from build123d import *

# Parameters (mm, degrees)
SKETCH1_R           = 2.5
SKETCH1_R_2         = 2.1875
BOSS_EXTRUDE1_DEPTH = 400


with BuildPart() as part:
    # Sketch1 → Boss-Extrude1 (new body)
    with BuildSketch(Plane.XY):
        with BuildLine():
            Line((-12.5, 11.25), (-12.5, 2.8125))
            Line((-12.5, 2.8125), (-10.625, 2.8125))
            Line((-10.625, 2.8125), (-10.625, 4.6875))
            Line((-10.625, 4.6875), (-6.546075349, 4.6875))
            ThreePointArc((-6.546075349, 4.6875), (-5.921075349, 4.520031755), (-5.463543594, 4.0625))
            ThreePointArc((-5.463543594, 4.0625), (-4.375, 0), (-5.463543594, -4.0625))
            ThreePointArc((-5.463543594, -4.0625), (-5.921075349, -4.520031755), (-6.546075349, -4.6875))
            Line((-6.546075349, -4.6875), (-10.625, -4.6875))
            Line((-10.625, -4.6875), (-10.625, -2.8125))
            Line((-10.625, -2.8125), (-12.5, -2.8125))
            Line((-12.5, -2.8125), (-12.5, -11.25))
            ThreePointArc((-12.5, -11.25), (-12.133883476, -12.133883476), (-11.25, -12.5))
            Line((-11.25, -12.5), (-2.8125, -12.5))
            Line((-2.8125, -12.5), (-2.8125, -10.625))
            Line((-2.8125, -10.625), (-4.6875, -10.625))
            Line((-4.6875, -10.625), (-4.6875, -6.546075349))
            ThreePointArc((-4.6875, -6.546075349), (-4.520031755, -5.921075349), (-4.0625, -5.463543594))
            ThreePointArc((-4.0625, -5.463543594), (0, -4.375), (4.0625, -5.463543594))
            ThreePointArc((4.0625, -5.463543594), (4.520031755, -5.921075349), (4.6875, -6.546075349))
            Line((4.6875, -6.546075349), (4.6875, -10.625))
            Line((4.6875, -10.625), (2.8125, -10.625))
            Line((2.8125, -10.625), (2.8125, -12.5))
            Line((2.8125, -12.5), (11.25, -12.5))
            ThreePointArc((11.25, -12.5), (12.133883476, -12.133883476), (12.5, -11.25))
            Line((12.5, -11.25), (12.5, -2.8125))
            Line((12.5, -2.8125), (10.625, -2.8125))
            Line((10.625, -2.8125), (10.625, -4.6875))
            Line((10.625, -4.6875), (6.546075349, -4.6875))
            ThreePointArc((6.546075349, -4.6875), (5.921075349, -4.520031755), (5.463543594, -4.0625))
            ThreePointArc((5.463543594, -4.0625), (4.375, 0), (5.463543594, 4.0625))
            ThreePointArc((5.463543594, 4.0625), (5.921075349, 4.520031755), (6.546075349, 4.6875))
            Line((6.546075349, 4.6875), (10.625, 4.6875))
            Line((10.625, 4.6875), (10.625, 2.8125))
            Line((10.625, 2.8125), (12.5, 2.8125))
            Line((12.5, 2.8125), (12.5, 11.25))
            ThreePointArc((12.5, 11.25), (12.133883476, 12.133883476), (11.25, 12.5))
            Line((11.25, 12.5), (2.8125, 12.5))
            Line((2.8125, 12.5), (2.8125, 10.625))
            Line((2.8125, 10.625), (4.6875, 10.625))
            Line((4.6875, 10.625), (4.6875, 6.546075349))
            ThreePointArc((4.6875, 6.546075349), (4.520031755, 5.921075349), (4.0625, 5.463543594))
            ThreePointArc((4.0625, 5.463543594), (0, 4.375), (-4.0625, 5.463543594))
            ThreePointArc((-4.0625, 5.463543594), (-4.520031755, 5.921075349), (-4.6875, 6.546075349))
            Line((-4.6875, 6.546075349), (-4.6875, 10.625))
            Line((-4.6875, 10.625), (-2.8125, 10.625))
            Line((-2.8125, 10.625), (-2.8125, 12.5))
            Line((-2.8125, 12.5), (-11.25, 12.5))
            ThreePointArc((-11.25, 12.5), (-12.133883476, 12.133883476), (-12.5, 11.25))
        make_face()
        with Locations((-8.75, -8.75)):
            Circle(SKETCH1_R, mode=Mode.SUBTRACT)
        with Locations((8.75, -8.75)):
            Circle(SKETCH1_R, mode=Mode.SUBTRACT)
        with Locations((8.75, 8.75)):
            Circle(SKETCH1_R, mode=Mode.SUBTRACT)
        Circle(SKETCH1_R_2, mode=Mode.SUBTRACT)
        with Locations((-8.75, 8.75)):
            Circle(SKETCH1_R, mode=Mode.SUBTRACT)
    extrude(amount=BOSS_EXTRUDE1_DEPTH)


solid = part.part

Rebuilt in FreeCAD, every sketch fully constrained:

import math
import FreeCAD as App
import Part
import Sketcher
Q = App.Units.Quantity

doc = App.newDocument("Part")
body = doc.addObject("PartDesign::Body", "Body")

sketch1 = body.newObject("Sketcher::SketchObject", "Sketch")
sketch1.AttachmentSupport = (doc.getObject("XY_Plane"), [""])
sketch1.MapMode = "FlatFace"
sketch1.addGeometry([
    Part.LineSegment(App.Vector(-12.5, 11.25, 0), App.Vector(-12.5, 2.8125, 0)),
    Part.LineSegment(App.Vector(-12.5, 2.8125, 0), App.Vector(-10.625, 2.8125, 0)),
    Part.LineSegment(App.Vector(-10.625, 2.8125, 0), App.Vector(-10.625, 4.6875, 0)),
    Part.LineSegment(App.Vector(-10.625, 4.6875, 0), App.Vector(-6.546075, 4.6875, 0)),
    Part.ArcOfCircle(Part.Circle(App.Vector(-6.546075, 3.4375, 0), App.Vector(0, 0, 1), 1.25), math.radians(30), math.radians(90)),
    Part.ArcOfCircle(Part.Circle(App.Vector(-12.5, 0, 0), App.Vector(0, 0, 1), 8.125), math.radians(-30), math.radians(30)),
    Part.ArcOfCircle(Part.Circle(App.Vector(-6.546075, -3.4375, 0), App.Vector(0, 0, 1), 1.25), math.radians(-90), math.radians(-30)),
    Part.LineSegment(App.Vector(-6.546075, -4.6875, 0), App.Vector(-10.625, -4.6875, 0)),
    Part.LineSegment(App.Vector(-10.625, -4.6875, 0), App.Vector(-10.625, -2.8125, 0)),
    Part.LineSegment(App.Vector(-10.625, -2.8125, 0), App.Vector(-12.5, -2.8125, 0)),
    Part.LineSegment(App.Vector(-12.5, -2.8125, 0), App.Vector(-12.5, -11.25, 0)),
    Part.ArcOfCircle(Part.Circle(App.Vector(-11.25, -11.25, 0), App.Vector(0, 0, 1), 1.25), math.radians(-180), math.radians(-90)),
    Part.LineSegment(App.Vector(-11.25, -12.5, 0), App.Vector(-2.8125, -12.5, 0)),
    Part.LineSegment(App.Vector(-2.8125, -12.5, 0), App.Vector(-2.8125, -10.625, 0)),
    Part.LineSegment(App.Vector(-2.8125, -10.625, 0), App.Vector(-4.6875, -10.625, 0)),
    Part.LineSegment(App.Vector(-4.6875, -10.625, 0), App.Vector(-4.6875, -6.546075, 0)),
    Part.ArcOfCircle(Part.Circle(App.Vector(-3.4375, -6.546075, 0), App.Vector(0, 0, 1), 1.25), math.radians(120), math.radians(180)),
    Part.ArcOfCircle(Part.Circle(App.Vector(0, -12.5, 0), App.Vector(0, 0, 1), 8.125), math.radians(60), math.radians(120)),
    Part.ArcOfCircle(Part.Circle(App.Vector(3.4375, -6.546075, 0), App.Vector(0, 0, 1), 1.25), math.radians(0), math.radians(60)),
    Part.LineSegment(App.Vector(4.6875, -6.546075, 0), App.Vector(4.6875, -10.625, 0)),
    Part.LineSegment(App.Vector(4.6875, -10.625, 0), App.Vector(2.8125, -10.625, 0)),
    Part.LineSegment(App.Vector(2.8125, -10.625, 0), App.Vector(2.8125, -12.5, 0)),
    Part.LineSegment(App.Vector(2.8125, -12.5, 0), App.Vector(11.25, -12.5, 0)),
    Part.ArcOfCircle(Part.Circle(App.Vector(11.25, -11.25, 0), App.Vector(0, 0, 1), 1.25), math.radians(-90), math.radians(0)),
    Part.LineSegment(App.Vector(12.5, -11.25, 0), App.Vector(12.5, -2.8125, 0)),
    Part.LineSegment(App.Vector(12.5, -2.8125, 0), App.Vector(10.625, -2.8125, 0)),
    Part.LineSegment(App.Vector(10.625, -2.8125, 0), App.Vector(10.625, -4.6875, 0)),
    Part.LineSegment(App.Vector(10.625, -4.6875, 0), App.Vector(6.546075, -4.6875, 0)),
    Part.ArcOfCircle(Part.Circle(App.Vector(6.546075, -3.4375, 0), App.Vector(0, 0, 1), 1.25), math.radians(-150), math.radians(-90)),
    Part.ArcOfCircle(Part.Circle(App.Vector(12.5, 0, 0), App.Vector(0, 0, 1), 8.125), math.radians(150), math.radians(210)),
    Part.ArcOfCircle(Part.Circle(App.Vector(6.546075, 3.4375, 0), App.Vector(0, 0, 1), 1.25), math.radians(90), math.radians(150)),
    Part.LineSegment(App.Vector(6.546075, 4.6875, 0), App.Vector(10.625, 4.6875, 0)),
    Part.LineSegment(App.Vector(10.625, 4.6875, 0), App.Vector(10.625, 2.8125, 0)),
    Part.LineSegment(App.Vector(10.625, 2.8125, 0), App.Vector(12.5, 2.8125, 0)),
    Part.LineSegment(App.Vector(12.5, 2.8125, 0), App.Vector(12.5, 11.25, 0)),
    Part.ArcOfCircle(Part.Circle(App.Vector(11.25, 11.25, 0), App.Vector(0, 0, 1), 1.25), math.radians(0), math.radians(90)),
    Part.LineSegment(App.Vector(11.25, 12.5, 0), App.Vector(2.8125, 12.5, 0)),
    Part.LineSegment(App.Vector(2.8125, 12.5, 0), App.Vector(2.8125, 10.625, 0)),
    Part.LineSegment(App.Vector(2.8125, 10.625, 0), App.Vector(4.6875, 10.625, 0)),
    Part.LineSegment(App.Vector(4.6875, 10.625, 0), App.Vector(4.6875, 6.546075, 0)),
    Part.ArcOfCircle(Part.Circle(App.Vector(3.4375, 6.546075, 0), App.Vector(0, 0, 1), 1.25), math.radians(-60), math.radians(0)),
    Part.ArcOfCircle(Part.Circle(App.Vector(0, 12.5, 0), App.Vector(0, 0, 1), 8.125), math.radians(-120), math.radians(-60)),
    Part.ArcOfCircle(Part.Circle(App.Vector(-3.4375, 6.546075, 0), App.Vector(0, 0, 1), 1.25), math.radians(180), math.radians(240)),
    Part.LineSegment(App.Vector(-4.6875, 6.546075, 0), App.Vector(-4.6875, 10.625, 0)),
    Part.LineSegment(App.Vector(-4.6875, 10.625, 0), App.Vector(-2.8125, 10.625, 0)),
    Part.LineSegment(App.Vector(-2.8125, 10.625, 0), App.Vector(-2.8125, 12.5, 0)),
    Part.LineSegment(App.Vector(-2.8125, 12.5, 0), App.Vector(-11.25, 12.5, 0)),
    Part.ArcOfCircle(Part.Circle(App.Vector(-11.25, 11.25, 0), App.Vector(0, 0, 1), 1.25), math.radians(90), math.radians(180)),
    Part.Circle(App.Vector(-8.75, -8.75, 0), App.Vector(0, 0, 1), 2.5),
    Part.Circle(App.Vector(8.75, -8.75, 0), App.Vector(0, 0, 1), 2.5),
    Part.Circle(App.Vector(-8.75, 8.75, 0), App.Vector(0, 0, 1), 2.5),
    Part.Circle(App.Vector(0, 0, 0), App.Vector(0, 0, 1), 2.1875),
    Part.Circle(App.Vector(8.75, 8.75, 0), App.Vector(0, 0, 1), 2.5),
], False)
sketch1.addConstraint([
    Sketcher.Constraint("Coincident", 0, 2, 1, 1),
    Sketcher.Constraint("Coincident", 1, 2, 2, 1),
    Sketcher.Constraint("Coincident", 2, 2, 3, 1),
    Sketcher.Constraint("Tangent", 3, 2, 4, 2),
    Sketcher.Constraint("Tangent", 4, 1, 5, 2),
    Sketcher.Constraint("Tangent", 5, 1, 6, 2),
    Sketcher.Constraint("Tangent", 6, 1, 7, 1),
    Sketcher.Constraint("Coincident", 7, 2, 8, 1),
    Sketcher.Constraint("Coincident", 8, 2, 9, 1),
    Sketcher.Constraint("Coincident", 9, 2, 10, 1),
    Sketcher.Constraint("Tangent", 10, 2, 11, 1),
    Sketcher.Constraint("Tangent", 11, 2, 12, 1),
    Sketcher.Constraint("Coincident", 12, 2, 13, 1),
    Sketcher.Constraint("Coincident", 13, 2, 14, 1),
    Sketcher.Constraint("Coincident", 14, 2, 15, 1),
    Sketcher.Constraint("Tangent", 15, 2, 16, 2),
    Sketcher.Constraint("Tangent", 16, 1, 17, 2),
    Sketcher.Constraint("Tangent", 17, 1, 18, 2),
    Sketcher.Constraint("Tangent", 18, 1, 19, 1),
    Sketcher.Constraint("Coincident", 19, 2, 20, 1),
    Sketcher.Constraint("Coincident", 20, 2, 21, 1),
    Sketcher.Constraint("Coincident", 21, 2, 22, 1),
    Sketcher.Constraint("Tangent", 22, 2, 23, 1),
    Sketcher.Constraint("Tangent", 23, 2, 24, 1),
    Sketcher.Constraint("Coincident", 24, 2, 25, 1),
    Sketcher.Constraint("Coincident", 25, 2, 26, 1),
    Sketcher.Constraint("Coincident", 26, 2, 27, 1),
    Sketcher.Constraint("Tangent", 27, 2, 28, 2),
    Sketcher.Constraint("Tangent", 28, 1, 29, 2),
    Sketcher.Constraint("Tangent", 29, 1, 30, 2),
    Sketcher.Constraint("Tangent", 30, 1, 31, 1),
    Sketcher.Constraint("Coincident", 31, 2, 32, 1),
    Sketcher.Constraint("Coincident", 32, 2, 33, 1),
    Sketcher.Constraint("Coincident", 33, 2, 34, 1),
    Sketcher.Constraint("Tangent", 34, 2, 35, 1),
    Sketcher.Constraint("Tangent", 35, 2, 36, 1),
    Sketcher.Constraint("Coincident", 36, 2, 37, 1),
    Sketcher.Constraint("Coincident", 37, 2, 38, 1),
    Sketcher.Constraint("Coincident", 38, 2, 39, 1),
    Sketcher.Constraint("Tangent", 39, 2, 40, 2),
    Sketcher.Constraint("Tangent", 40, 1, 41, 2),
    Sketcher.Constraint("Tangent", 41, 1, 42, 2),
    Sketcher.Constraint("Tangent", 42, 1, 43, 1),
    Sketcher.Constraint("Coincident", 43, 2, 44, 1),
    Sketcher.Constraint("Coincident", 44, 2, 45, 1),
    Sketcher.Constraint("Coincident", 45, 2, 46, 1),
    Sketcher.Constraint("Tangent", 46, 2, 47, 1),
    Sketcher.Constraint("Tangent", 47, 2, 0, 1),
    Sketcher.Constraint("Vertical", 0),
    Sketcher.Constraint("Horizontal", 1),
    Sketcher.Constraint("Vertical", 2),
    Sketcher.Constraint("Horizontal", 3),
    Sketcher.Constraint("Horizontal", 7),
    Sketcher.Constraint("Vertical", 8),
    Sketcher.Constraint("Horizontal", 9),
    Sketcher.Constraint("Vertical", 10),
    Sketcher.Constraint("Horizontal", 12),
    Sketcher.Constraint("Vertical", 13),
    Sketcher.Constraint("Horizontal", 14),
    Sketcher.Constraint("Vertical", 15),
    Sketcher.Constraint("Vertical", 19),
    Sketcher.Constraint("Horizontal", 20),
    Sketcher.Constraint("Vertical", 21),
    Sketcher.Constraint("Horizontal", 22),
    Sketcher.Constraint("Vertical", 24),
    Sketcher.Constraint("Horizontal", 25),
    Sketcher.Constraint("Vertical", 26),
    Sketcher.Constraint("Horizontal", 27),
    Sketcher.Constraint("Horizontal", 31),
    Sketcher.Constraint("Vertical", 32),
    Sketcher.Constraint("Horizontal", 33),
    Sketcher.Constraint("Vertical", 34),
    Sketcher.Constraint("Horizontal", 36),
    Sketcher.Constraint("Vertical", 37),
    Sketcher.Constraint("Horizontal", 38),
    Sketcher.Constraint("Vertical", 39),
    Sketcher.Constraint("Vertical", 43),
    Sketcher.Constraint("Horizontal", 44),
    Sketcher.Constraint("Vertical", 45),
    Sketcher.Constraint("Horizontal", 46),
    Sketcher.Constraint("Coincident", 51, 3, -1, 1),
    Sketcher.Constraint("Equal", 4, 6),
    Sketcher.Constraint("Equal", 6, 11),
    Sketcher.Constraint("Equal", 11, 16),
    Sketcher.Constraint("Equal", 5, 17),
    Sketcher.Constraint("Equal", 16, 18),
    Sketcher.Constraint("Equal", 18, 23),
    Sketcher.Constraint("Equal", 23, 28),
    Sketcher.Constraint("Equal", 17, 29),
    Sketcher.Constraint("Equal", 28, 30),
    Sketcher.Constraint("Equal", 30, 35),
    Sketcher.Constraint("Equal", 35, 40),
    Sketcher.Constraint("Equal", 29, 41),
    Sketcher.Constraint("Equal", 40, 42),
    Sketcher.Constraint("Equal", 42, 47),
    Sketcher.Constraint("Equal", 48, 49),
    Sketcher.Constraint("Equal", 49, 50),
    Sketcher.Constraint("Equal", 50, 52),
    Sketcher.Constraint("Symmetric", 4, 3, 28, 3, -1, 1),
    Sketcher.Constraint("Symmetric", 6, 3, 30, 3, -1, 1),
    Sketcher.Constraint("Symmetric", 11, 3, 35, 3, -1, 1),
    Sketcher.Constraint("Symmetric", 16, 3, 40, 3, -1, 1),
    Sketcher.Constraint("Symmetric", 18, 3, 42, 3, -1, 1),
    Sketcher.Constraint("Symmetric", 23, 3, 47, 3, -1, 1),
    Sketcher.Constraint("Symmetric", 49, 3, 50, 3, -1, 1),
    Sketcher.Constraint("Symmetric", 48, 3, 52, 3, -1, 1),
    Sketcher.Constraint("Symmetric", 1, 2, 25, 2, -1, 1),
    Sketcher.Constraint("Symmetric", 8, 2, 32, 2, -1, 1),
    Sketcher.Constraint("Symmetric", 13, 2, 37, 2, -1, 1),
    Sketcher.Constraint("Symmetric", 20, 2, 44, 2, -1, 1),
    Sketcher.Constraint("Symmetric", 16, 3, 18, 3, -2),
    Sketcher.Constraint("Symmetric", 11, 3, 23, 3, -2),
    Sketcher.Constraint("Symmetric", 6, 3, 28, 3, -2),
    Sketcher.Constraint("Symmetric", 48, 3, 49, 3, -2),
    Sketcher.Constraint("Symmetric", 13, 2, 20, 2, -2),
    Sketcher.Constraint("Symmetric", 8, 2, 25, 2, -2),
    Sketcher.Constraint("Horizontal", 17, 3, 11, 2),
    Sketcher.Constraint("Vertical", 5, 3, 0, 2),
    Sketcher.Constraint("Equal", 9, 14),
    Sketcher.Constraint("Equal", 46, 0),
    Sketcher.Constraint("Equal", 44, 2),
    Sketcher.Constraint("Equal", 8, 13),
    Sketcher.Constraint("Equal", 31, 15),
    Sketcher.Constraint("Diameter", 48, Q("5 mm")),
    Sketcher.Constraint("Radius", 4, Q("1.25 mm")),
    Sketcher.Constraint("Diameter", 51, Q("4.375 mm")),
    Sketcher.Constraint("Radius", 5, Q("8.125 mm")),
    Sketcher.Constraint("DistanceX", 5, 3, -1, 1, Q("12.5 mm")),
    Sketcher.Constraint("DistanceX", 1, 1, 1, 2, Q("1.875 mm")),
    Sketcher.Constraint("DistanceX", 48, 3, -1, 1, Q("8.75 mm")),
    Sketcher.Constraint("DistanceY", 48, 3, -1, 1, Q("8.75 mm")),
    Sketcher.Constraint("DistanceX", 12, 1, 12, 2, Q("8.4375 mm")),
])
pad1 = body.newObject("PartDesign::Pad", "Pad")
pad1.Profile = sketch1
pad1.Length = 400

doc.recompute()
